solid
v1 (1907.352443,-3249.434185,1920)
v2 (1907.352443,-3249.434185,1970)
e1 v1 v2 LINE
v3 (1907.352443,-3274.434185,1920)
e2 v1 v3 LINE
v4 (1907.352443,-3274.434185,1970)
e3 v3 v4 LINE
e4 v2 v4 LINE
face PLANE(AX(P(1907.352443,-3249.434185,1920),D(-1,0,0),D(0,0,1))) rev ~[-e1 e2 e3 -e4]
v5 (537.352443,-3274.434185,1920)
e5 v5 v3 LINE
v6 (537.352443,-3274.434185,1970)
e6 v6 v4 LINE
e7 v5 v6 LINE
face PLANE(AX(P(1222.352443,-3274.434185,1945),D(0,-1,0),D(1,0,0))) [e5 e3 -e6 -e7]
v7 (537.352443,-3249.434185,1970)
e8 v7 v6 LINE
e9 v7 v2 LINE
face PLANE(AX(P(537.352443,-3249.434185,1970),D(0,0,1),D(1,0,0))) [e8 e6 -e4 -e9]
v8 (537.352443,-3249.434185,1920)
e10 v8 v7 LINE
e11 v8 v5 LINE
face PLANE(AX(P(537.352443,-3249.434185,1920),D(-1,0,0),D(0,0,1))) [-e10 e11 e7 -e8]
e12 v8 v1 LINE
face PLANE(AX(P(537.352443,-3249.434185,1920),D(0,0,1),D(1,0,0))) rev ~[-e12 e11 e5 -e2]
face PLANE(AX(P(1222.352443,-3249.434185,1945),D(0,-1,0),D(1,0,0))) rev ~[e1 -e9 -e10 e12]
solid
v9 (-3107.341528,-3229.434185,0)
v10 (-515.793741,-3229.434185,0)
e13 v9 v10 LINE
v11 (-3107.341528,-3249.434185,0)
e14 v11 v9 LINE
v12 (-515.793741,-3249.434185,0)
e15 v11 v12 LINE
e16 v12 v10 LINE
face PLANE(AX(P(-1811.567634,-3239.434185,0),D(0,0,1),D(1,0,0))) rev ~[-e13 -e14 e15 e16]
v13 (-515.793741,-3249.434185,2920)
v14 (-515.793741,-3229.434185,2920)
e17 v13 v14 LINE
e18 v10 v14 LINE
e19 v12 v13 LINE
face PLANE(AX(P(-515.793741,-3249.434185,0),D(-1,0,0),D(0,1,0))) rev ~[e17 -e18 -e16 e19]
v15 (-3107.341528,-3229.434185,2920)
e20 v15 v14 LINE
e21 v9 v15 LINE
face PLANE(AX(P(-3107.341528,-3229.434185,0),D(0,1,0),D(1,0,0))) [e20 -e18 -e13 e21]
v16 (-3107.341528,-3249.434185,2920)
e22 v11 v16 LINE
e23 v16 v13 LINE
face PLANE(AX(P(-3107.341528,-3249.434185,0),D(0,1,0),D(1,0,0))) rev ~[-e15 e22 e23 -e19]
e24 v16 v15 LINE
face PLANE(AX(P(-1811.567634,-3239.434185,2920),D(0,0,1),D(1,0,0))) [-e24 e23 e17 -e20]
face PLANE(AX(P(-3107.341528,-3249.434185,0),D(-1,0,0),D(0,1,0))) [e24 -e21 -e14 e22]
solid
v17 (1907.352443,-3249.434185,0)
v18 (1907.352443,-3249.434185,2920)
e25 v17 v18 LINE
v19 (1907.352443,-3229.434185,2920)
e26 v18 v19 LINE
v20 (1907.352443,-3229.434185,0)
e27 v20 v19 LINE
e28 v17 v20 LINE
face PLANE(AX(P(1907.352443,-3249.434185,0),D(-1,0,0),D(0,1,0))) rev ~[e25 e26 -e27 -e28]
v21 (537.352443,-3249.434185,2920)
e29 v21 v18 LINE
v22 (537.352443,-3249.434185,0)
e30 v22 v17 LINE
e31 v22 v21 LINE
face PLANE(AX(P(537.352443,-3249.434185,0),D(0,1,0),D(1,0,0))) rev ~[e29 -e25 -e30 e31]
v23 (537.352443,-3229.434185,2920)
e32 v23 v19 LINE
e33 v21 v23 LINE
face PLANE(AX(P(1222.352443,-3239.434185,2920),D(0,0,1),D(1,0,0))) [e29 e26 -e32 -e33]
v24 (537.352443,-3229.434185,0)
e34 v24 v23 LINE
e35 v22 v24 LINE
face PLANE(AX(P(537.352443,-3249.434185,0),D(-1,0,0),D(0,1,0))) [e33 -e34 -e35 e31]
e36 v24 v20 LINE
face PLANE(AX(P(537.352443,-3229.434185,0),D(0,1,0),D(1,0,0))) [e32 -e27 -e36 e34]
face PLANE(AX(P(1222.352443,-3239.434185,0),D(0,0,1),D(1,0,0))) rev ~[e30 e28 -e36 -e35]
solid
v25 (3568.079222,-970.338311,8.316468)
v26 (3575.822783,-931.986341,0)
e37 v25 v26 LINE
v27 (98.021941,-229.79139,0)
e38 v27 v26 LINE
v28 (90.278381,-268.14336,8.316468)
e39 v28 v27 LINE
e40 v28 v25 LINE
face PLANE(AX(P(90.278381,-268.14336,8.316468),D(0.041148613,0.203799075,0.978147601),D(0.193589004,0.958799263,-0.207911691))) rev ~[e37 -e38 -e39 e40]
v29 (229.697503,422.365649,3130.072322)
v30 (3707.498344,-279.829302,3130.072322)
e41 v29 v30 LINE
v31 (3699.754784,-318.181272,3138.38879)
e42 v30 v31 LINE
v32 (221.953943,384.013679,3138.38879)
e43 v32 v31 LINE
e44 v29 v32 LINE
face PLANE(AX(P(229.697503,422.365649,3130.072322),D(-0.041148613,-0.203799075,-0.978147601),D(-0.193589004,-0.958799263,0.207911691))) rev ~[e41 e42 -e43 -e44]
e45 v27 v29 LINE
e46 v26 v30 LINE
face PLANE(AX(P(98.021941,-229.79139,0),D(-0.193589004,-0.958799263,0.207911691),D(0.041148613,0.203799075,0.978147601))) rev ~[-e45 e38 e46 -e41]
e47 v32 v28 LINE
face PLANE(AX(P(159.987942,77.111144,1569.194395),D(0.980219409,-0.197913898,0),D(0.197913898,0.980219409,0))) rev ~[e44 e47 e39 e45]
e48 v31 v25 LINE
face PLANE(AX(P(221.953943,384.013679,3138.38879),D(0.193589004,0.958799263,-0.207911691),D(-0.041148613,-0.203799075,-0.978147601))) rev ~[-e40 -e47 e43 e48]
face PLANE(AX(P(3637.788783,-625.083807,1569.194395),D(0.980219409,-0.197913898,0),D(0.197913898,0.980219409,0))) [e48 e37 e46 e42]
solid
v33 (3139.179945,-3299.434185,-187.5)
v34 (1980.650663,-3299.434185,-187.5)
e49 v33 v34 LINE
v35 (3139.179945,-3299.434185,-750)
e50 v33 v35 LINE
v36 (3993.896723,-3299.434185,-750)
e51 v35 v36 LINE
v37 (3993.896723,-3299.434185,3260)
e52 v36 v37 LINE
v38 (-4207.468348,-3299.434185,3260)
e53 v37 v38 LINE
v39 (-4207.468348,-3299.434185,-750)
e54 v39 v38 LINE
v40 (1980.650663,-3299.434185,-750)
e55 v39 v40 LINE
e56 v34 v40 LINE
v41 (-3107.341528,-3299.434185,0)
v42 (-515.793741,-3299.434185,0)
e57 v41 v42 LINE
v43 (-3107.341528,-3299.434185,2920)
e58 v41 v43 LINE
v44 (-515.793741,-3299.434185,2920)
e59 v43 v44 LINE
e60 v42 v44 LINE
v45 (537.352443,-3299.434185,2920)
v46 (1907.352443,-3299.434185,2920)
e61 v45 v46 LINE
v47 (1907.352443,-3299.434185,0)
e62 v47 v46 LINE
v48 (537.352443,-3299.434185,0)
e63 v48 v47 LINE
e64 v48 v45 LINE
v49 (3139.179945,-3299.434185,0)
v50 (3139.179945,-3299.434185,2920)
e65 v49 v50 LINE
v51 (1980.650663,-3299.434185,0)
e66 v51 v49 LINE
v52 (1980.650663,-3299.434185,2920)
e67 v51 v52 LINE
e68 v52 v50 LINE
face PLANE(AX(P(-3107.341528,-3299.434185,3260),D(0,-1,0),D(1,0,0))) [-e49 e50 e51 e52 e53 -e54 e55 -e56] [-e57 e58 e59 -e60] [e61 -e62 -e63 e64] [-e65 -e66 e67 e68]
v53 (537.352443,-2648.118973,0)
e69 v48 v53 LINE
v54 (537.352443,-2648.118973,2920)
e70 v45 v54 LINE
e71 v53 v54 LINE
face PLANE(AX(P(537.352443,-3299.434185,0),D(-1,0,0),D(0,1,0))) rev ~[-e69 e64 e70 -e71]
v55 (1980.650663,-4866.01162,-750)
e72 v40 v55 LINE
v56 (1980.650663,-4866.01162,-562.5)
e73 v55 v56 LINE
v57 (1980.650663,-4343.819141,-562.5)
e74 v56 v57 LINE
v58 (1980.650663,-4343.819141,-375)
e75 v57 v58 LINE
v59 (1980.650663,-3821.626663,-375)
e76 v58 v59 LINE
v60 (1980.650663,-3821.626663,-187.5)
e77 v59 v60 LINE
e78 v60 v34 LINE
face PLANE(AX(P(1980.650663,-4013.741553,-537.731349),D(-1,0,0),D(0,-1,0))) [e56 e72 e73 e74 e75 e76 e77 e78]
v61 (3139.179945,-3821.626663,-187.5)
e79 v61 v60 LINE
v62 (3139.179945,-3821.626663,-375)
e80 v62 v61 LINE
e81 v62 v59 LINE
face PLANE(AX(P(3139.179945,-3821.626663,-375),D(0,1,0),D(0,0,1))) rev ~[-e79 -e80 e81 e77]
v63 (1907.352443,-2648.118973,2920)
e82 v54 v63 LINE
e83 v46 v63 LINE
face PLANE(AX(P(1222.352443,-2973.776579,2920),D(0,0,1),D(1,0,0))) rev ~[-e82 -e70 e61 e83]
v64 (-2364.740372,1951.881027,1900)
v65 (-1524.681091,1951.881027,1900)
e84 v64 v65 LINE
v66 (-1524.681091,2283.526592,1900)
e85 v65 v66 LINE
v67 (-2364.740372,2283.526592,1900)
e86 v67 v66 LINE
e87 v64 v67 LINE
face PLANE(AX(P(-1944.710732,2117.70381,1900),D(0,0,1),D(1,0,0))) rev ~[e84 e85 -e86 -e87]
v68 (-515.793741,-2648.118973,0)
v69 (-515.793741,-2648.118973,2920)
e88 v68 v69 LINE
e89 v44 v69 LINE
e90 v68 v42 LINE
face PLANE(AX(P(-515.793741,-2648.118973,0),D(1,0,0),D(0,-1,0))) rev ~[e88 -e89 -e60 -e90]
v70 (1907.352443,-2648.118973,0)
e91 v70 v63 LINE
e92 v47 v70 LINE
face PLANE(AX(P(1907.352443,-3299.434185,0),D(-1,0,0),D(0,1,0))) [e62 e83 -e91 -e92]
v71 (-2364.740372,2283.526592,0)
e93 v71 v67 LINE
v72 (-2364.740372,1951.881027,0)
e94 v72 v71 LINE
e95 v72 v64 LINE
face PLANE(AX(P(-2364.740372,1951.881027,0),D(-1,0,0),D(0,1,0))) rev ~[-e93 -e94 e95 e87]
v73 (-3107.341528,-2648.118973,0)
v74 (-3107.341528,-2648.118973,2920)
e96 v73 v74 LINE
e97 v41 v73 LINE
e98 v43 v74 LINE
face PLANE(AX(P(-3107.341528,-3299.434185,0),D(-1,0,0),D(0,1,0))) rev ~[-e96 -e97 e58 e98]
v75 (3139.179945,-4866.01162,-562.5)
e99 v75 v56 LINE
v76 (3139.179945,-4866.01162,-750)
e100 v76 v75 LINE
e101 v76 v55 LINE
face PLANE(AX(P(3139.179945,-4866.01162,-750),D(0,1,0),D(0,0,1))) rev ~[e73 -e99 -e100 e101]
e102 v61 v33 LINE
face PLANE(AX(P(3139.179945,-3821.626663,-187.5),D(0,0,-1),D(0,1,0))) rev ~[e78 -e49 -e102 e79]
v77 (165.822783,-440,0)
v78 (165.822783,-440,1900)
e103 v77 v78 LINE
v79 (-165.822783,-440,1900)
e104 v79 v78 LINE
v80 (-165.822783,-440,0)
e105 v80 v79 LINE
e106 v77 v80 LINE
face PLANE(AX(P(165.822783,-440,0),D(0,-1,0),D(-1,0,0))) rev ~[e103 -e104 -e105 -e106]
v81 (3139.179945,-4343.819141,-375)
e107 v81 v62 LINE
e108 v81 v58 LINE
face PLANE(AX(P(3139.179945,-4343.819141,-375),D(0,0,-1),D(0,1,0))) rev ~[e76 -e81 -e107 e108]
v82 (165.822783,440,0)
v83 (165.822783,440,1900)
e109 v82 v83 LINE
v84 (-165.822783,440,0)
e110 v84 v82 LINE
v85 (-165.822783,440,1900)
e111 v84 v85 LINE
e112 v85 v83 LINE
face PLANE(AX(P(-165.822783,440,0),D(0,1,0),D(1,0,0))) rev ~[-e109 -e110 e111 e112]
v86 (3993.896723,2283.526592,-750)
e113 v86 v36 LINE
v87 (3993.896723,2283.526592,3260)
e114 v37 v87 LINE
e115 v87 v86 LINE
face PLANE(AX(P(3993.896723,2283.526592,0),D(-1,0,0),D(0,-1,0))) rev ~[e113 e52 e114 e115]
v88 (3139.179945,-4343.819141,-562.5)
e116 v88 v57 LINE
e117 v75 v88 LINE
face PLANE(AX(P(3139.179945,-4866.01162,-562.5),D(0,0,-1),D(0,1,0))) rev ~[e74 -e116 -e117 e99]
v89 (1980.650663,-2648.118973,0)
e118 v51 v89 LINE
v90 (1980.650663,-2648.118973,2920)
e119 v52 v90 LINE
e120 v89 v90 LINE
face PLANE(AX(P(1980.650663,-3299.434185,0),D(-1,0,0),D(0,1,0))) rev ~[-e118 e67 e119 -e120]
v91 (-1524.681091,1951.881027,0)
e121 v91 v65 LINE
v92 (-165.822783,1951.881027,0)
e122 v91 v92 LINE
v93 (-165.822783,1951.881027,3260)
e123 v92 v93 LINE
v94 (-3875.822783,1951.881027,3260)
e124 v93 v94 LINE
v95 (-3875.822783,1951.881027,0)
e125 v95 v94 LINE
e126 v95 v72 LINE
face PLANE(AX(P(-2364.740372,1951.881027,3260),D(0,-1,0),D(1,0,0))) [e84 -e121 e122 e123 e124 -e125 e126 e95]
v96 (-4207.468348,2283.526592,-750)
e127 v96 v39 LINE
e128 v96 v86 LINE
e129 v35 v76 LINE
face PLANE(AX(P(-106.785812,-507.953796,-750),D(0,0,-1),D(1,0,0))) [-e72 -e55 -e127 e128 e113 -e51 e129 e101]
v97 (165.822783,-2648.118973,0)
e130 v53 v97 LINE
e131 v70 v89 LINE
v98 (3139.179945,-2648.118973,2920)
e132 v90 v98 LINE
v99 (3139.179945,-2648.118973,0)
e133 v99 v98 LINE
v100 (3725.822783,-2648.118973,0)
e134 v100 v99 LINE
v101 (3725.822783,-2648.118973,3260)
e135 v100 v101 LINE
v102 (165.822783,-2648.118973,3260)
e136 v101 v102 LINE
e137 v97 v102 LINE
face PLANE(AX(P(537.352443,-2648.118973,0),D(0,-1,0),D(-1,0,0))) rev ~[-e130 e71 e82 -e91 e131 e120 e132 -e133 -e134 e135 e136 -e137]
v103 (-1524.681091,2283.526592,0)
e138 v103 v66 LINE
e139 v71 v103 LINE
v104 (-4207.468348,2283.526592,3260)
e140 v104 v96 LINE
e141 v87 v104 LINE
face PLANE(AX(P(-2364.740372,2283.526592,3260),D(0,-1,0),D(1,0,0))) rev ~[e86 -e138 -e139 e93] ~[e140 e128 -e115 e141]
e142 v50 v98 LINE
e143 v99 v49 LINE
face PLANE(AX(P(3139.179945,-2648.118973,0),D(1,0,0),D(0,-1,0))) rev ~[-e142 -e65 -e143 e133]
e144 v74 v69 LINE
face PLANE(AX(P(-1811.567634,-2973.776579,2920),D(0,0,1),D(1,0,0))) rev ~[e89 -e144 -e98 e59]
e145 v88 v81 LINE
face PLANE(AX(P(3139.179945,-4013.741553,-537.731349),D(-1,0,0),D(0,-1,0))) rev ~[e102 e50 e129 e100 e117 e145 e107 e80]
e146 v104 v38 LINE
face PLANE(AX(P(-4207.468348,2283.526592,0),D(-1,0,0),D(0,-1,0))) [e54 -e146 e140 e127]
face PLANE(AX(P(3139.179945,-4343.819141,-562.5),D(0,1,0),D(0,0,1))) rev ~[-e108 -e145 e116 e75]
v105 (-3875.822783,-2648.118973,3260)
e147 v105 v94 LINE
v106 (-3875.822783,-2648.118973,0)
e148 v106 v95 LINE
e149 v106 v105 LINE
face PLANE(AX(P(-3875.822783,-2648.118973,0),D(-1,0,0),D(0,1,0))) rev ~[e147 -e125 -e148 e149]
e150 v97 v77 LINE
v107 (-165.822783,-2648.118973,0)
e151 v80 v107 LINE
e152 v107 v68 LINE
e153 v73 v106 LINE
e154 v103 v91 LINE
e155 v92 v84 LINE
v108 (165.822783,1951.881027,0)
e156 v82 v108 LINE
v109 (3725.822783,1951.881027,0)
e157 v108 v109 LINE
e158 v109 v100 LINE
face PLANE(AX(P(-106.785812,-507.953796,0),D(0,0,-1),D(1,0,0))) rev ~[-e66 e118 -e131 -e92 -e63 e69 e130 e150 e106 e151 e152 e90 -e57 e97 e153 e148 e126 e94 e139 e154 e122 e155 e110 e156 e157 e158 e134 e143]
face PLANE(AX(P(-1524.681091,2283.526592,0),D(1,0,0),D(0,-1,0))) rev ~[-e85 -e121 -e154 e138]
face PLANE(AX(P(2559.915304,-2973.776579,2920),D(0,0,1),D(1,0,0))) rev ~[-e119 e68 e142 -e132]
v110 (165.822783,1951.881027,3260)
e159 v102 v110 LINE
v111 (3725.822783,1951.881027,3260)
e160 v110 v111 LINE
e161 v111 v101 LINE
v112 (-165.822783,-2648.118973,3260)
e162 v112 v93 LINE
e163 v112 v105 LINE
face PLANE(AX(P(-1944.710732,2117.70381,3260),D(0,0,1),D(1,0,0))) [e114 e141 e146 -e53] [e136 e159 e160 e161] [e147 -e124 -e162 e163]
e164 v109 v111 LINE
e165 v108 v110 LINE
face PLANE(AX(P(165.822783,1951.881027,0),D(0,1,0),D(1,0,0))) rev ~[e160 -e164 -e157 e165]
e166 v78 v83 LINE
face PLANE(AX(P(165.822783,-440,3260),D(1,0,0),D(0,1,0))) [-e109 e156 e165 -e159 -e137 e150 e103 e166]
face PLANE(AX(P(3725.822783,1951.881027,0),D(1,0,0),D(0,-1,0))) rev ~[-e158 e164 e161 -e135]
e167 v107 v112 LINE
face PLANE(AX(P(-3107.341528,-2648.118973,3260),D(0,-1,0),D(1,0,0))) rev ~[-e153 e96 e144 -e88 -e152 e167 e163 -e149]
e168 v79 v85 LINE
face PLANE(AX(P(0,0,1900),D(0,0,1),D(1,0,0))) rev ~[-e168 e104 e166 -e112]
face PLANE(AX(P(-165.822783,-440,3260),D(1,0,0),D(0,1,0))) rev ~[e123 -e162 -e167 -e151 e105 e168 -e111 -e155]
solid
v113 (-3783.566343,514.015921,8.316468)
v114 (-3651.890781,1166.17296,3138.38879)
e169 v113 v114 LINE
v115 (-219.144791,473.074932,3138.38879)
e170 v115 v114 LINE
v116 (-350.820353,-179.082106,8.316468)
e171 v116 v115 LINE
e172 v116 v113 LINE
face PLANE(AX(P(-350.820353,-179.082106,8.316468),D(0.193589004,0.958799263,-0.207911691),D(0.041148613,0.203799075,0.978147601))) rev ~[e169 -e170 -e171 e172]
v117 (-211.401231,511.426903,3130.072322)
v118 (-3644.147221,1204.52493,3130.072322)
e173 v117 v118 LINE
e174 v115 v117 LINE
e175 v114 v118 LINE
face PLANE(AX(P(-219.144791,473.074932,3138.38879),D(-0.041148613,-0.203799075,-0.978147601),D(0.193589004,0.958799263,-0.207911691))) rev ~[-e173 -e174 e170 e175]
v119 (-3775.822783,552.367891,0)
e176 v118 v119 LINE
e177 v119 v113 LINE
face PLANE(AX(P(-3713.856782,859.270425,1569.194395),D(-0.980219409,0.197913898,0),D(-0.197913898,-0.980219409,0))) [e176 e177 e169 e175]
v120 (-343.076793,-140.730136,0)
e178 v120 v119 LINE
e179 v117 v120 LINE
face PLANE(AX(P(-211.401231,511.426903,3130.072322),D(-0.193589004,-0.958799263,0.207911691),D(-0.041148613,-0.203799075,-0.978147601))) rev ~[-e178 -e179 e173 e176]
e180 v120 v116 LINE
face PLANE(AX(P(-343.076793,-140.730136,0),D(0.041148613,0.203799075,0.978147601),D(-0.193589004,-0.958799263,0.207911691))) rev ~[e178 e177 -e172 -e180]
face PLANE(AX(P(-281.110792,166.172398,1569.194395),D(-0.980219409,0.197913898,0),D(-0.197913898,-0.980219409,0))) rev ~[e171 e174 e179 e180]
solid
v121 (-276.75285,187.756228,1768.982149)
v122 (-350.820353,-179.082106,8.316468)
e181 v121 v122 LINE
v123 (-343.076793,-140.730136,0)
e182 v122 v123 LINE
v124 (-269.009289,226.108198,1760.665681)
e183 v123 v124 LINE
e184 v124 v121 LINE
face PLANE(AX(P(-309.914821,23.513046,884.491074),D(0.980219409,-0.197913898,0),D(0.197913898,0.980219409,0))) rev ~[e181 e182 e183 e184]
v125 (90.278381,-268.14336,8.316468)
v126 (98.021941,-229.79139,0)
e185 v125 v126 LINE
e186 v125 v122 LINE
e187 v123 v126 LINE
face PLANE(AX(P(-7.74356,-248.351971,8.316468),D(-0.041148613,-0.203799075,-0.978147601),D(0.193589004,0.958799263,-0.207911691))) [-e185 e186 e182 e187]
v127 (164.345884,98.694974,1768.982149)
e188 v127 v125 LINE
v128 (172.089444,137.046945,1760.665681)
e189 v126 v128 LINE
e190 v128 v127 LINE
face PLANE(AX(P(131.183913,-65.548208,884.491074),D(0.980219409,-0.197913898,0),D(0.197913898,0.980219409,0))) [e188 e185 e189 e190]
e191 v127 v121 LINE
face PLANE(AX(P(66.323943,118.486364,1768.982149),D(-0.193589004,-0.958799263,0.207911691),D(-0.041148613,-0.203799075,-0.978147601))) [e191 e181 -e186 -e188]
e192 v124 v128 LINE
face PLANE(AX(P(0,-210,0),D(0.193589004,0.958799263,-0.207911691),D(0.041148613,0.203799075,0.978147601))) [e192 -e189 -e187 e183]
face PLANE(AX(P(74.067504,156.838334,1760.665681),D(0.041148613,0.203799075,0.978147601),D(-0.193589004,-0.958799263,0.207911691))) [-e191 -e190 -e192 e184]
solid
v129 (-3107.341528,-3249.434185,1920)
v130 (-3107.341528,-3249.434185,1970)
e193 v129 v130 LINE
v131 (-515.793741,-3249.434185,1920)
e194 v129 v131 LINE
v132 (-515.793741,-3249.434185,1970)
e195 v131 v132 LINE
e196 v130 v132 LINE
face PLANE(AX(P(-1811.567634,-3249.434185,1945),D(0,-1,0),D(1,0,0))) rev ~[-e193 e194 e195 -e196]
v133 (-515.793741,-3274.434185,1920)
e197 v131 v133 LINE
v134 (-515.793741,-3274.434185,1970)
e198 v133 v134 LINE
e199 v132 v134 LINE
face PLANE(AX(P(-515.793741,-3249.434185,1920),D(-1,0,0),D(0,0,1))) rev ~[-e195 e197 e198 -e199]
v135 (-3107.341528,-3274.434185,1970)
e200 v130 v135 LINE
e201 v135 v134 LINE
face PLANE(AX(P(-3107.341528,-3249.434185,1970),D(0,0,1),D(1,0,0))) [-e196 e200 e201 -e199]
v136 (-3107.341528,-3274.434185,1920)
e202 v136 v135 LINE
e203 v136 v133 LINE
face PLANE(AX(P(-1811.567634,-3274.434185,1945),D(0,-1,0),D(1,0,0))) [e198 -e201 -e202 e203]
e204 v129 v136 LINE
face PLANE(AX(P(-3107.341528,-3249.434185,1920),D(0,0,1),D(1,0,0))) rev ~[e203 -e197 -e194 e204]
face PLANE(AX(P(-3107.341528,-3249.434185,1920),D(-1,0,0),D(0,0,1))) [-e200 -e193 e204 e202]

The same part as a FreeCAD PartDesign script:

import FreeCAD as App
import Part
import Sketcher
Q = App.Units.Quantity

doc = App.newDocument("Part")
params = doc.addObject("Spreadsheet::Sheet", "Params")
for row, (alias, value) in enumerate([
    ("sketch1_width", "3560 mm"),
    ("sketch1_height", "4600 mm"),
    ("pad1_length", "3260 mm"),
    ("pad2_length", "3260 mm"),
    ("sketch3_height", "4600 mm"),
    ("pad3_length", "3260 mm"),
    ("pad4_length", "3260 mm"),
    ("pad5_length", "750 mm"),
    ("sketch6_height", "562.5 mm"),
    ("pad6_length", "1158.529282 mm"),
    ("sketch7_height", "880 mm"),
    ("pad7_length", "1360 mm"),
    ("sketch8_width", "1370 mm"),
    ("pad8_length", "340 mm"),
    ("pad9_length", "1360 mm"),
    ("sketch10_height", "20 mm"),
    ("pad10_length", "2920 mm"),
    ("sketch11_width", "1370 mm"),
    ("sketch11_height", "20 mm"),
    ("pad11_length", "2920 mm"),
    ("sketch12_height", "50 mm"),
    ("pad12_length", "25 mm"),
    ("sketch13_width", "1370 mm"),
    ("sketch13_height", "50 mm"),
    ("pad13_length", "25 mm"),
    ("sketch14_length", "40 mm"),
    ("pad14_length", "100 mm"),
    ("sketch15_length", "40 mm"),
    ("pad15_length", "350 mm"),
    ("sketch16_length", "40 mm"),
    ("pad16_length", "3547.982024 mm"),
    ("sketch17_length", "40 mm"),
    ("pad17_length", "3502.017976 mm"),
], start=1):
    params.set(f"A{row}", alias)
    params.set(f"B{row}", "=" + value)
    params.setAlias(f"B{row}", alias)

body = doc.addObject("PartDesign::Body", "Body")

# Sketch on XY plane
sketch1 = body.newObject("Sketcher::SketchObject", "Sketch")
sketch1.AttachmentSupport = (doc.getObject("XY_Plane"), [""])
sketch1.MapMode = "FlatFace"
sketch1.addGeometry([
    Part.LineSegment(App.Vector(-166, 1952, 0), App.Vector(-166, 440, 0)),  # 0
    Part.LineSegment(App.Vector(-166, 440, 0), App.Vector(166, 440, 0)),  # 1
    Part.LineSegment(App.Vector(166, 440, 0), App.Vector(166, 1952, 0)),  # 2
    Part.LineSegment(App.Vector(166, 1952, 0), App.Vector(3726, 1952, 0)),  # 3
    Part.LineSegment(App.Vector(3726, 1952, 0), App.Vector(3726, -2648, 0)),  # 4
    Part.LineSegment(App.Vector(3726, -2648, 0), App.Vector(3139, -2648, 0)),  # 5
    Part.LineSegment(App.Vector(3139, -2648, 0), App.Vector(3139, -3299, 0)),  # 6
    Part.LineSegment(App.Vector(3139, -3299, 0), App.Vector(3994, -3299, 0)),  # 7
    Part.LineSegment(App.Vector(3994, -3299, 0), App.Vector(3994, 2284, 0)),  # 8
    Part.LineSegment(App.Vector(3994, 2284, 0), App.Vector(-1525, 2284, 0)),  # 9
    Part.LineSegment(App.Vector(-1525, 2284, 0), App.Vector(-1525, 1952, 0)),  # 10
    Part.LineSegment(App.Vector(-1525, 1952, 0), App.Vector(-166, 1952, 0)),  # 11
], False)
sketch1.addConstraint([
    Sketcher.Constraint("Coincident", 0, 2, 1, 1),
    Sketcher.Constraint("Coincident", 1, 2, 2, 1),
    Sketcher.Constraint("Coincident", 2, 2, 3, 1),
    Sketcher.Constraint("Coincident", 3, 2, 4, 1),
    Sketcher.Constraint("Coincident", 4, 2, 5, 1),
    Sketcher.Constraint("Coincident", 5, 2, 6, 1),
    Sketcher.Constraint("Coincident", 6, 2, 7, 1),
    Sketcher.Constraint("Coincident", 7, 2, 8, 1),
    Sketcher.Constraint("Coincident", 8, 2, 9, 1),
    Sketcher.Constraint("Coincident", 9, 2, 10, 1),
    Sketcher.Constraint("Coincident", 10, 2, 11, 1),
    Sketcher.Constraint("Coincident", 11, 2, 0, 1),
    Sketcher.Constraint("Vertical", 0),
    Sketcher.Constraint("Horizontal", 1),
    Sketcher.Constraint("Vertical", 2),
    Sketcher.Constraint("Horizontal", 3),
    Sketcher.Constraint("Vertical", 4),
    Sketcher.Constraint("Horizontal", 5),
    Sketcher.Constraint("Vertical", 6),
    Sketcher.Constraint("Horizontal", 7),
    Sketcher.Constraint("Vertical", 8),
    Sketcher.Constraint("Horizontal", 9),
    Sketcher.Constraint("Vertical", 10),
    Sketcher.Constraint("Horizontal", 11),
    Sketcher.Constraint("Symmetric", 2, 2, 11, 2, -2),
    Sketcher.Constraint("Equal", 1, 10),
    Sketcher.Constraint("DistanceX", 3, 1, 3, 2, Q("3560 mm")),
    Sketcher.Constraint("DistanceY", 4, 2, 4, 1, Q("4600 mm")),
    Sketcher.Constraint("DistanceY", -1, 1, 0, 2, Q("440 mm")),
    Sketcher.Constraint("DistanceX", 11, 1, 11, 2, Q("1358.858309 mm")),
    Sketcher.Constraint("DistanceX", 1, 1, 1, 2, Q("331.645565 mm")),
    Sketcher.Constraint("DistanceX", 5, 2, 5, 1, Q("586.642838 mm")),
    Sketcher.Constraint("DistanceX", 7, 1, 7, 2, Q("854.716778 mm")),
    Sketcher.Constraint("DistanceY", 0, 2, 0, 1, Q("1511.881027 mm")),
    Sketcher.Constraint("DistanceY", 6, 2, 6, 1, Q("651.315212 mm")),
])
sketch1.setExpression("Constraints[26]", "Params.sketch1_width")
sketch1.setExpression("Constraints[27]", "Params.sketch1_height")
pad1 = body.newObject("PartDesign::Pad", "Pad")
pad1.Profile = sketch1
pad1.setExpression("Length", "Params.pad1_length")
body2 = doc.addObject("PartDesign::Body", "Body001")

# Sketch on XY plane
sketch2 = body2.newObject("Sketcher::SketchObject", "Sketch001")
sketch2.AttachmentSupport = (doc.getObject("XY_Plane001"), [""])
sketch2.MapMode = "FlatFace"
sketch2.addGeometry([
    Part.LineSegment(App.Vector(166, -440, 0), App.Vector(-166, -440, 0)),  # 0
    Part.LineSegment(App.Vector(-166, -440, 0), App.Vector(-166, -2648, 0)),  # 1
    Part.LineSegment(App.Vector(-166, -2648, 0), App.Vector(-516, -2648, 0)),  # 2
    Part.LineSegment(App.Vector(-516, -2648, 0), App.Vector(-516, -3299, 0)),  # 3
    Part.LineSegment(App.Vector(-516, -3299, 0), App.Vector(537, -3299, 0)),  # 4
    Part.LineSegment(App.Vector(537, -3299, 0), App.Vector(537, -2648, 0)),  # 5
    Part.LineSegment(App.Vector(537, -2648, 0), App.Vector(166, -2648, 0)),  # 6
    Part.LineSegment(App.Vector(166, -2648, 0), App.Vector(166, -440, 0)),  # 7
], False)
sketch2.addConstraint([
    Sketcher.Constraint("Coincident", 0, 2, 1, 1),
    Sketcher.Constraint("Coincident", 1, 2, 2, 1),
    Sketcher.Constraint("Coincident", 2, 2, 3, 1),
    Sketcher.Constraint("Coincident", 3, 2, 4, 1),
    Sketcher.Constraint("Coincident", 4, 2, 5, 1),
    Sketcher.Constraint("Coincident", 5, 2, 6, 1),
    Sketcher.Constraint("Coincident", 6, 2, 7, 1),
    Sketcher.Constraint("Coincident", 7, 2, 0, 1),
    Sketcher.Constraint("Horizontal", 0),
    Sketcher.Constraint("Vertical", 1),
    Sketcher.Constraint("Horizontal", 2),
    Sketcher.Constraint("Vertical", 3),
    Sketcher.Constraint("Horizontal", 4),
    Sketcher.Constraint("Vertical", 5),
    Sketcher.Constraint("Horizontal", 6),
    Sketcher.Constraint("Vertical", 7),
    Sketcher.Constraint("Symmetric", 1, 2, 6, 2, -2),
    Sketcher.Constraint("DistanceY", 0, 2, -1, 1, Q("440 mm")),
    Sketcher.Constraint("DistanceX", 2, 2, 2, 1, Q("349.970958 mm")),
    Sketcher.Constraint("DistanceX", 6, 2, 6, 1, Q("371.52966 mm")),
    Sketcher.Constraint("DistanceX", 0, 2, 0, 1, Q("331.645565 mm")),
    Sketcher.Constraint("DistanceY", 1, 2, 1, 1, Q("2208.118973 mm")),
    Sketcher.Constraint("DistanceY", 3, 2, 3, 1, Q("651.315212 mm")),
])
pad2 = body2.newObject("PartDesign::Pad", "Pad001")
pad2.Profile = sketch2
pad2.setExpression("Length", "Params.pad2_length")
body3 = doc.addObject("PartDesign::Body", "Body002")

# Sketch on XY plane
sketch3 = body3.newObject("Sketcher::SketchObject", "Sketch002")
sketch3.AttachmentSupport = (doc.getObject("XY_Plane002"), [""])
sketch3.MapMode = "FlatFace"
sketch3.addGeometry([
    Part.LineSegment(App.Vector(-3876, -2648, 0), App.Vector(-3876, 1952, 0)),  # 0
    Part.LineSegment(App.Vector(-3876, 1952, 0), App.Vector(-2365, 1952, 0)),  # 1
    Part.LineSegment(App.Vector(-2365, 1952, 0), App.Vector(-2365, 2284, 0)),  # 2
    Part.LineSegment(App.Vector(-2365, 2284, 0), App.Vector(-4207, 2284, 0)),  # 3
    Part.LineSegment(App.Vector(-4207, 2284, 0), App.Vector(-4207, -3299, 0)),  # 4
    Part.LineSegment(App.Vector(-4207, -3299, 0), App.Vector(-3107, -3299, 0)),  # 5
    Part.LineSegment(App.Vector(-3107, -3299, 0), App.Vector(-3107, -2648, 0)),  # 6
    Part.LineSegment(App.Vector(-3107, -2648, 0), App.Vector(-3876, -2648, 0)),  # 7
], False)
sketch3.addConstraint([
    Sketcher.Constraint("Coincident", 0, 2, 1, 1),
    Sketcher.Constraint("Coincident", 1, 2, 2, 1),
    Sketcher.Constraint("Coincident", 2, 2, 3, 1),
    Sketcher.Constraint("Coincident", 3, 2, 4, 1),
    Sketcher.Constraint("Coincident", 4, 2, 5, 1),
    Sketcher.Constraint("Coincident", 5, 2, 6, 1),
    Sketcher.Constraint("Coincident", 6, 2, 7, 1),
    Sketcher.Constraint("Coincident", 7, 2, 0, 1),
    Sketcher.Constraint("Vertical", 0),
    Sketcher.Constraint("Horizontal", 1),
    Sketcher.Constraint("Vertical", 2),
    Sketcher.Constraint("Horizontal", 3),
    Sketcher.Constraint("Vertical", 4),
    Sketcher.Constraint("Horizontal", 5),
    Sketcher.Constraint("Vertical", 6),
    Sketcher.Constraint("Horizontal", 7),
    Sketcher.Constraint("DistanceY", 0, 1, 0, 2, Q("4600 mm")),
    Sketcher.Constraint("DistanceX", 1, 1, 1, 2, Q("1511.082411 mm")),
    Sketcher.Constraint("DistanceX", 5, 1, 5, 2, Q("1100.12682 mm")),
    Sketcher.Constraint("DistanceX", 3, 2, 3, 1, Q("1842.727976 mm")),
    Sketcher.Constraint("DistanceY", 2, 1, 2, 2, Q("331.645565 mm")),
    Sketcher.Constraint("DistanceY", 4, 2, 4, 1, Q("5582.960777 mm")),
    Sketcher.Constraint("DistanceX", 1, 2, -1, 1, Q("2364.740372 mm")),
    Sketcher.Constraint("DistanceY", -1, 1, 0, 2, Q("1951.881027 mm")),
])
sketch3.setExpression("Constraints[16]", "Params.sketch3_height")
pad3 = body3.newObject("PartDesign::Pad", "Pad002")
pad3.Profile = sketch3
pad3.setExpression("Length", "Params.pad3_length")
body4 = doc.addObject("PartDesign::Body", "Body003")

# Sketch on XY plane
sketch4 = body4.newObject("Sketcher::SketchObject", "Sketch003")
sketch4.AttachmentSupport = (doc.getObject("XY_Plane003"), [""])
sketch4.MapMode = "FlatFace"
sketch4.addGeometry([
    Part.LineSegment(App.Vector(1907, -2648, 0), App.Vector(1907, -3299, 0)),
    Part.LineSegment(App.Vector(1907, -3299, 0), App.Vector(1981, -3299, 0)),
    Part.LineSegment(App.Vector(1981, -3299, 0), App.Vector(1981, -2648, 0)),
    Part.LineSegment(App.Vector(1981, -2648, 0), App.Vector(1907, -2648, 0)),
], False)
sketch4.addConstraint([
    Sketcher.Constraint("Coincident", 0, 2, 1, 1),
    Sketcher.Constraint("Coincident", 1, 2, 2, 1),
    Sketcher.Constraint("Coincident", 2, 2, 3, 1),
    Sketcher.Constraint("Coincident", 3, 2, 0, 1),
    Sketcher.Constraint("Vertical", 0),
    Sketcher.Constraint("Horizontal", 1),
    Sketcher.Constraint("Vertical", 2),
    Sketcher.Constraint("Horizontal", 3),
    Sketcher.Constraint("DistanceX", 1, 1, 1, 2, Q("73.298221 mm")),
    Sketcher.Constraint("DistanceY", 0, 2, 0, 1, Q("651.315212 mm")),
    Sketcher.Constraint("DistanceX", -1, 1, 0, 2, Q("1907.352443 mm")),
    Sketcher.Constraint("DistanceY", 0, 2, -1, 1, Q("3299.434185 mm")),
])
pad4 = body4.newObject("PartDesign::Pad", "Pad003")
pad4.Profile = sketch4
pad4.setExpression("Length", "Params.pad4_length")
body.AllowCompound = True
doc.recompute()

boolean = body.newObject("PartDesign::Boolean", "Boolean")
boolean.Type = "Fuse"
boolean.addObjects([body2])
doc.recompute()

boolean2 = body.newObject("PartDesign::Boolean", "Boolean001")
boolean2.Type = "Fuse"
boolean2.addObjects([body3])
doc.recompute()

boolean3 = body.newObject("PartDesign::Boolean", "Boolean002")
boolean3.Type = "Fuse"
boolean3.addObjects([body4])

# Sketch on XY plane
sketch5 = body.newObject("Sketcher::SketchObject", "Sketch004")
sketch5.AttachmentSupport = (doc.getObject("XY_Plane"), [""])
sketch5.MapMode = "FlatFace"
sketch5.addGeometry([
    Part.LineSegment(App.Vector(-4207, -3299, 0), App.Vector(-4207, 2284, 0)),
    Part.LineSegment(App.Vector(-4207, 2284, 0), App.Vector(3994, 2284, 0)),
    Part.LineSegment(App.Vector(3994, 2284, 0), App.Vector(3994, -3299, 0)),
    Part.LineSegment(App.Vector(3994, -3299, 0), App.Vector(-4207, -3299, 0)),
], False)
sketch5.addConstraint([
    Sketcher.Constraint("Coincident", 0, 2, 1, 1),
    Sketcher.Constraint("Coincident", 1, 2, 2, 1),
    Sketcher.Constraint("Coincident", 2, 2, 3, 1),
    Sketcher.Constraint("Coincident", 3, 2, 0, 1),
    Sketcher.Constraint("Vertical", 0),
    Sketcher.Constraint("Horizontal", 1),
    Sketcher.Constraint("Vertical", 2),
    Sketcher.Constraint("Horizontal", 3),
    Sketcher.Constraint("DistanceX", 1, 1, 1, 2, Q("8201.36507 mm")),
    Sketcher.Constraint("DistanceY", 0, 1, 0, 2, Q("5582.960777 mm")),
    Sketcher.Constraint("DistanceX", 0, 2, -1, 1, Q("4207.468348 mm")),
    Sketcher.Constraint("DistanceY", -1, 1, 0, 2, Q("2283.526592 mm")),
])
pad5 = body.newObject("PartDesign::Pad", "Pad004")
pad5.Profile = sketch5
pad5.setExpression("Length", "Params.pad5_length")
pad5.Reversed = True

# Sketch on YZ plane
sketch6 = body.newObject("Sketcher::SketchObject", "Sketch005")
sketch6.AttachmentSupport = (doc.getObject("YZ_Plane"), [""])
sketch6.MapMode = "FlatFace"
sketch6.AttachmentOffset = App.Placement(App.Vector(0, 0, 3139.179945), App.Rotation())
sketch6.addGeometry([
    Part.LineSegment(App.Vector(-3822, -188, 0), App.Vector(-3299, -188, 0)),  # 0
    Part.LineSegment(App.Vector(-3299, -188, 0), App.Vector(-3299, -750, 0)),  # 1
    Part.LineSegment(App.Vector(-3299, -750, 0), App.Vector(-4866, -750, 0)),  # 2
    Part.LineSegment(App.Vector(-4866, -750, 0), App.Vector(-4866, -562, 0)),  # 3
    Part.LineSegment(App.Vector(-4866, -562, 0), App.Vector(-4344, -562, 0)),  # 4
    Part.LineSegment(App.Vector(-4344, -562, 0), App.Vector(-4344, -375, 0)),  # 5
    Part.LineSegment(App.Vector(-4344, -375, 0), App.Vector(-3822, -375, 0)),  # 6
    Part.LineSegment(App.Vector(-3822, -375, 0), App.Vector(-3822, -188, 0)),  # 7
], False)
sketch6.addConstraint([
    Sketcher.Constraint("Coincident", 0, 2, 1, 1),
    Sketcher.Constraint("Coincident", 1, 2, 2, 1),
    Sketcher.Constraint("Coincident", 2, 2, 3, 1),
    Sketcher.Constraint("Coincident", 3, 2, 4, 1),
    Sketcher.Constraint("Coincident", 4, 2, 5, 1),
    Sketcher.Constraint("Coincident", 5, 2, 6, 1),
    Sketcher.Constraint("Coincident", 6, 2, 7, 1),
    Sketcher.Constraint("Coincident", 7, 2, 0, 1),
    Sketcher.Constraint("Horizontal", 0),
    Sketcher.Constraint("Vertical", 1),
    Sketcher.Constraint("Horizontal", 2),
    Sketcher.Constraint("Vertical", 3),
    Sketcher.Constraint("Horizontal", 4),
    Sketcher.Constraint("Vertical", 5),
    Sketcher.Constraint("Horizontal", 6),
    Sketcher.Constraint("Vertical", 7),
    Sketcher.Constraint("Equal", 0, 4),
    Sketcher.Constraint("Equal", 4, 6),
    Sketcher.Constraint("Equal", 3, 5),
    Sketcher.Constraint("Equal", 5, 7),
    Sketcher.Constraint("DistanceY", 1, 2, 1, 1, Q("562.5 mm")),
    Sketcher.Constraint("DistanceY", 1, 2, -1, 1, Q("750 mm")),
    Sketcher.Constraint("DistanceX", 0, 1, 0, 2, Q("522.192478 mm")),
    Sketcher.Constraint("DistanceX", 2, 2, -1, 1, Q("4866.01162 mm")),
])
sketch6.setExpression("Constraints[20]", "Params.sketch6_height")
pad6 = body.newObject("PartDesign::Pad", "Pad005")
pad6.Profile = sketch6
pad6.setExpression("Length", "Params.pad6_length")
pad6.Reversed = True

# Sketch on XY plane
sketch7 = body.newObject("Sketcher::SketchObject", "Sketch006")
sketch7.AttachmentSupport = (doc.getObject("XY_Plane"), [""])
sketch7.MapMode = "FlatFace"
sketch7.AttachmentOffset = App.Placement(App.Vector(0, 0, 3260), App.Rotation())
sketch7.addGeometry([
    Part.LineSegment(App.Vector(-166, 440, 0), App.Vector(-166, -440, 0)),
    Part.LineSegment(App.Vector(-166, -440, 0), App.Vector(166, -440, 0)),
    Part.LineSegment(App.Vector(166, -440, 0), App.Vector(166, 440, 0)),
    Part.LineSegment(App.Vector(166, 440, 0), App.Vector(-166, 440, 0)),
], False)
sketch7.addConstraint([
    Sketcher.Constraint("Coincident", 0, 2, 1, 1),
    Sketcher.Constraint("Coincident", 1, 2, 2, 1),
    Sketcher.Constraint("Coincident", 2, 2, 3, 1),
    Sketcher.Constraint("Coincident", 3, 2, 0, 1),
    Sketcher.Constraint("Vertical", 0),
    Sketcher.Constraint("Horizontal", 1),
    Sketcher.Constraint("Vertical", 2),
    Sketcher.Constraint("Horizontal", 3),
    Sketcher.Constraint("Symmetric", 0, 2, 2, 2, -1, 1),
    Sketcher.Constraint("DistanceY", 0, 2, 0, 1, Q("880 mm")),
    Sketcher.Constraint("DistanceX", 1, 1, 1, 2, Q("331.645565 mm")),
])
sketch7.setExpression("Constraints[9]", "Params.sketch7_height")
pad7 = body.newObject("PartDesign::Pad", "Pad006")
pad7.Profile = sketch7
pad7.setExpression("Length", "Params.pad7_length")
pad7.Reversed = True

# Sketch on XY plane
sketch8 = body.newObject("Sketcher::SketchObject", "Sketch007")
sketch8.AttachmentSupport = (doc.getObject("XY_Plane"), [""])
sketch8.MapMode = "FlatFace"
sketch8.AttachmentOffset = App.Placement(App.Vector(0, 0, 3260), App.Rotation())
sketch8.addGeometry([
    Part.LineSegment(App.Vector(-3107, -2648, 0), App.Vector(-3107, -3299, 0)),  # 0
    Part.LineSegment(App.Vector(-3107, -3299, 0), App.Vector(-516, -3299, 0)),  # 1
    Part.LineSegment(App.Vector(-516, -3299, 0), App.Vector(-516, -2648, 0)),  # 2
    Part.LineSegment(App.Vector(-516, -2648, 0), App.Vector(-3107, -2648, 0)),  # 3
    Part.LineSegment(App.Vector(537, -2648, 0), App.Vector(537, -3299, 0)),  # 4
    Part.LineSegment(App.Vector(537, -3299, 0), App.Vector(1907, -3299, 0)),  # 5
    Part.LineSegment(App.Vector(1907, -3299, 0), App.Vector(1907, -2648, 0)),  # 6
    Part.LineSegment(App.Vector(1907, -2648, 0), App.Vector(537, -2648, 0)),  # 7
    Part.LineSegment(App.Vector(1981, -2648, 0), App.Vector(1981, -3299, 0)),  # 8
    Part.LineSegment(App.Vector(1981, -3299, 0), App.Vector(3139, -3299, 0)),  # 9
    Part.LineSegment(App.Vector(3139, -3299, 0), App.Vector(3139, -2648, 0)),  # 10
    Part.LineSegment(App.Vector(3139, -2648, 0), App.Vector(1981, -2648, 0)),  # 11
], False)
sketch8.addConstraint([
    Sketcher.Constraint("Coincident", 0, 2, 1, 1),
    Sketcher.Constraint("Coincident", 1, 2, 2, 1),
    Sketcher.Constraint("Coincident", 2, 2, 3, 1),
    Sketcher.Constraint("Coincident", 3, 2, 0, 1),
    Sketcher.Constraint("Coincident", 4, 2, 5, 1),
    Sketcher.Constraint("Coincident", 5, 2, 6, 1),
    Sketcher.Constraint("Coincident", 6, 2, 7, 1),
    Sketcher.Constraint("Coincident", 7, 2, 4, 1),
    Sketcher.Constraint("Coincident", 8, 2, 9, 1),
    Sketcher.Constraint("Coincident", 9, 2, 10, 1),
    Sketcher.Constraint("Coincident", 10, 2, 11, 1),
    Sketcher.Constraint("Coincident", 11, 2, 8, 1),
    Sketcher.Constraint("Vertical", 0),
    Sketcher.Constraint("Horizontal", 1),
    Sketcher.Constraint("Vertical", 2),
    Sketcher.Constraint("Horizontal", 3),
    Sketcher.Constraint("Vertical", 4),
    Sketcher.Constraint("Horizontal", 5),
    Sketcher.Constraint("Vertical", 6),
    Sketcher.Constraint("Horizontal", 7),
    Sketcher.Constraint("Vertical", 8),
    Sketcher.Constraint("Horizontal", 9),
    Sketcher.Constraint("Vertical", 10),
    Sketcher.Constraint("Horizontal", 11),
    Sketcher.Constraint("Horizontal", 1, 2, 4, 2),
    Sketcher.Constraint("Horizontal", 3, 2, 6, 2),
    Sketcher.Constraint("Horizontal", 5, 2, 8, 2),
    Sketcher.Constraint("Horizontal", 7, 2, 10, 2),
    Sketcher.Constraint("DistanceX", 5, 1, 5, 2, Q("1370 mm")),
    Sketcher.Constraint("DistanceX", 9, 1, 9, 2, Q("1158.529282 mm")),
    Sketcher.Constraint("DistanceX", 1, 1, 1, 2, Q("2591.547787 mm")),
    Sketcher.Constraint("DistanceY", 0, 2, 0, 1, Q("651.315212 mm")),
    Sketcher.Constraint("DistanceX", 1, 2, -1, 1, Q("515.793741 mm")),
    Sketcher.Constraint("DistanceX", 0, 2, 4, 2, Q("3644.693971 mm")),
    Sketcher.Constraint("DistanceX", 5, 2, 8, 2, Q("73.298221 mm")),
    Sketcher.Constraint("DistanceY", 0, 2, -1, 1, Q("3299.434185 mm")),
])
sketch8.setExpression("Constraints[28]", "Params.sketch8_width")
pad8 = body.newObject("PartDesign::Pad", "Pad007")
pad8.Profile = sketch8
pad8.setExpression("Length", "Params.pad8_length")
pad8.Reversed = True

# Sketch on XY plane
sketch9 = body.newObject("Sketcher::SketchObject", "Sketch008")
sketch9.AttachmentSupport = (doc.getObject("XY_Plane"), [""])
sketch9.MapMode = "FlatFace"
sketch9.AttachmentOffset = App.Placement(App.Vector(0, 0, 3260), App.Rotation())
sketch9.addGeometry([
    Part.LineSegment(App.Vector(-2365, 2284, 0), App.Vector(-2365, 1952, 0)),
    Part.LineSegment(App.Vector(-2365, 1952, 0), App.Vector(-1525, 1952, 0)),
    Part.LineSegment(App.Vector(-1525, 1952, 0), App.Vector(-1525, 2284, 0)),
    Part.LineSegment(App.Vector(-1525, 2284, 0), App.Vector(-2365, 2284, 0)),
], False)
sketch9.addConstraint([
    Sketcher.Constraint("Coincident", 0, 2, 1, 1),
    Sketcher.Constraint("Coincident", 1, 2, 2, 1),
    Sketcher.Constraint("Coincident", 2, 2, 3, 1),
    Sketcher.Constraint("Coincident", 3, 2, 0, 1),
    Sketcher.Constraint("Vertical", 0),
    Sketcher.Constraint("Horizontal", 1),
    Sketcher.Constraint("Vertical", 2),
    Sketcher.Constraint("Horizontal", 3),
    Sketcher.Constraint("DistanceX", 1, 1, 1, 2, Q("840.05928 mm")),
    Sketcher.Constraint("DistanceY", 0, 2, 0, 1, Q("331.645565 mm")),
    Sketcher.Constraint("DistanceX", 0, 2, -1, 1, Q("2364.740372 mm")),
    Sketcher.Constraint("DistanceY", -1, 1, 0, 2, Q("1951.881027 mm")),
])
pad9 = body.newObject("PartDesign::Pad", "Pad008")
pad9.Profile = sketch9
pad9.setExpression("Length", "Params.pad9_length")
pad9.Reversed = True
body5 = doc.addObject("PartDesign::Body", "Body004")

# Sketch on XY plane
sketch10 = body5.newObject("Sketcher::SketchObject", "Sketch009")
sketch10.AttachmentSupport = (doc.getObject("XY_Plane004"), [""])
sketch10.MapMode = "FlatFace"
sketch10.addGeometry([
    Part.LineSegment(App.Vector(-3107, -3229, 0), App.Vector(-3107, -3249, 0)),
    Part.LineSegment(App.Vector(-3107, -3249, 0), App.Vector(-516, -3249, 0)),
    Part.LineSegment(App.Vector(-516, -3249, 0), App.Vector(-516, -3229, 0)),
    Part.LineSegment(App.Vector(-516, -3229, 0), App.Vector(-3107, -3229, 0)),
], False)
sketch10.addConstraint([
    Sketcher.Constraint("Coincident", 0, 2, 1, 1),
    Sketcher.Constraint("Coincident", 1, 2, 2, 1),
    Sketcher.Constraint("Coincident", 2, 2, 3, 1),
    Sketcher.Constraint("Coincident", 3, 2, 0, 1),
    Sketcher.Constraint("Vertical", 0),
    Sketcher.Constraint("Horizontal", 1),
    Sketcher.Constraint("Vertical", 2),
    Sketcher.Constraint("Horizontal", 3),
    Sketcher.Constraint("DistanceY", 0, 2, 0, 1, Q("20 mm")),
    Sketcher.Constraint("DistanceX", 1, 1, 1, 2, Q("2591.547787 mm")),
    Sketcher.Constraint("DistanceX", 1, 2, -1, 1, Q("515.793741 mm")),
    Sketcher.Constraint("DistanceY", 0, 2, -1, 1, Q("3249.434185 mm")),
])
sketch10.setExpression("Constraints[8]", "Params.sketch10_height")
pad10 = body5.newObject("PartDesign::Pad", "Pad009")
pad10.Profile = sketch10
pad10.setExpression("Length", "Params.pad10_length")
body6 = doc.addObject("PartDesign::Body", "Body005")

# Sketch on XY plane
sketch11 = body6.newObject("Sketcher::SketchObject", "Sketch010")
sketch11.AttachmentSupport = (doc.getObject("XY_Plane005"), [""])
sketch11.MapMode = "FlatFace"
sketch11.addGeometry([
    Part.LineSegment(App.Vector(537, -3229, 0), App.Vector(537, -3249, 0)),
    Part.LineSegment(App.Vector(537, -3249, 0), App.Vector(1907, -3249, 0)),
    Part.LineSegment(App.Vector(1907, -3249, 0), App.Vector(1907, -3229, 0)),
    Part.LineSegment(App.Vector(1907, -3229, 0), App.Vector(537, -3229, 0)),
], False)
sketch11.addConstraint([
    Sketcher.Constraint("Coincident", 0, 2, 1, 1),
    Sketcher.Constraint("Coincident", 1, 2, 2, 1),
    Sketcher.Constraint("Coincident", 2, 2, 3, 1),
    Sketcher.Constraint("Coincident", 3, 2, 0, 1),
    Sketcher.Constraint("Vertical", 0),
    Sketcher.Constraint("Horizontal", 1),
    Sketcher.Constraint("Vertical", 2),
    Sketcher.Constraint("Horizontal", 3),
    Sketcher.Constraint("DistanceX", 1, 1, 1, 2, Q("1370 mm")),
    Sketcher.Constraint("DistanceY", 0, 2, 0, 1, Q("20 mm")),
    Sketcher.Constraint("DistanceX", -1, 1, 0, 2, Q("537.352443 mm")),
    Sketcher.Constraint("DistanceY", 0, 2, -1, 1, Q("3249.434185 mm")),
])
sketch11.setExpression("Constraints[8]", "Params.sketch11_width")
sketch11.setExpression("Constraints[9]", "Params.sketch11_height")
pad11 = body6.newObject("PartDesign::Pad", "Pad010")
pad11.Profile = sketch11
pad11.setExpression("Length", "Params.pad11_length")
body7 = doc.addObject("PartDesign::Body", "Body006")

# Sketch on XZ plane
sketch12 = body7.newObject("Sketcher::SketchObject", "Sketch011")
sketch12.AttachmentSupport = (doc.getObject("XZ_Plane006"), [""])
sketch12.MapMode = "FlatFace"
sketch12.AttachmentOffset = App.Placement(App.Vector(0, 0, 3249.434185), App.Rotation())
sketch12.addGeometry([
    Part.LineSegment(App.Vector(-3107, 1970, 0), App.Vector(-3107, 1920, 0)),
    Part.LineSegment(App.Vector(-3107, 1920, 0), App.Vector(-516, 1920, 0)),
    Part.LineSegment(App.Vector(-516, 1920, 0), App.Vector(-516, 1970, 0)),
    Part.LineSegment(App.Vector(-516, 1970, 0), App.Vector(-3107, 1970, 0)),
], False)
sketch12.addConstraint([
    Sketcher.Constraint("Coincident", 0, 2, 1, 1),
    Sketcher.Constraint("Coincident", 1, 2, 2, 1),
    Sketcher.Constraint("Coincident", 2, 2, 3, 1),
    Sketcher.Constraint("Coincident", 3, 2, 0, 1),
    Sketcher.Constraint("Vertical", 0),
    Sketcher.Constraint("Horizontal", 1),
    Sketcher.Constraint("Vertical", 2),
    Sketcher.Constraint("Horizontal", 3),
    Sketcher.Constraint("DistanceY", 0, 2, 0, 1, Q("50 mm")),
    Sketcher.Constraint("DistanceY", -1, 1, 0, 2, Q("1920 mm")),
    Sketcher.Constraint("DistanceX", 1, 1, 1, 2, Q("2591.547787 mm")),
    Sketcher.Constraint("DistanceX", 1, 2, -1, 1, Q("515.793741 mm")),
])
sketch12.setExpression("Constraints[8]", "Params.sketch12_height")
pad12 = body7.newObject("PartDesign::Pad", "Pad011")
pad12.Profile = sketch12
pad12.setExpression("Length", "Params.pad12_length")
body8 = doc.addObject("PartDesign::Body", "Body007")

# Sketch on XZ plane
sketch13 = body8.newObject("Sketcher::SketchObject", "Sketch012")
sketch13.AttachmentSupport = (doc.getObject("XZ_Plane007"), [""])
sketch13.MapMode = "FlatFace"
sketch13.AttachmentOffset = App.Placement(App.Vector(0, 0, 3249.434185), App.Rotation())
sketch13.addGeometry([
    Part.LineSegment(App.Vector(537, 1970, 0), App.Vector(537, 1920, 0)),
    Part.LineSegment(App.Vector(537, 1920, 0), App.Vector(1907, 1920, 0)),
    Part.LineSegment(App.Vector(1907, 1920, 0), App.Vector(1907, 1970, 0)),
    Part.LineSegment(App.Vector(1907, 1970, 0), App.Vector(537, 1970, 0)),
], False)
sketch13.addConstraint([
    Sketcher.Constraint("Coincident", 0, 2, 1, 1),
    Sketcher.Constraint("Coincident", 1, 2, 2, 1),
    Sketcher.Constraint("Coincident", 2, 2, 3, 1),
    Sketcher.Constraint("Coincident", 3, 2, 0, 1),
    Sketcher.Constraint("Vertical", 0),
    Sketcher.Constraint("Horizontal", 1),
    Sketcher.Constraint("Vertical", 2),
    Sketcher.Constraint("Horizontal", 3),
    Sketcher.Constraint("DistanceX", 1, 1, 1, 2, Q("1370 mm")),
    Sketcher.Constraint("DistanceY", 0, 2, 0, 1, Q("50 mm")),
    Sketcher.Constraint("DistanceY", -1, 1, 0, 2, Q("1920 mm")),
    Sketcher.Constraint("DistanceX", -1, 1, 0, 2, Q("537.352443 mm")),
])
sketch13.setExpression("Constraints[8]", "Params.sketch13_width")
sketch13.setExpression("Constraints[9]", "Params.sketch13_height")
pad13 = body8.newObject("PartDesign::Pad", "Pad012")
pad13.Profile = sketch13
pad13.setExpression("Length", "Params.pad13_length")
body9 = doc.addObject("PartDesign::Body", "Body008")

# Sketch on an angled plane
sketch14 = body9.newObject("Sketcher::SketchObject", "Sketch013")
sketch14.Placement = App.Placement(App.Vector(40.739799, -8.225681, 0), App.Rotation(App.Vector(0.197913898, 0.980219409, 0), App.Vector(0, 0, 1.000000001), App.Vector(0.980219409, -0.197913898, 0), "ZXY"))
sketch14.addGeometry([
    Part.LineSegment(App.Vector(-245, 8, 0), App.Vector(-206, 0, 0)),
    Part.LineSegment(App.Vector(-206, 0, 0), App.Vector(168, 1761, 0)),
    Part.LineSegment(App.Vector(168, 1761, 0), App.Vector(129, 1769, 0)),
    Part.LineSegment(App.Vector(129, 1769, 0), App.Vector(-245, 8, 0)),
], False)
sketch14.addConstraint([
    Sketcher.Constraint("Coincident", 0, 2, 1, 1),
    Sketcher.Constraint("Coincident", 1, 2, 2, 1),
    Sketcher.Constraint("Coincident", 2, 2, 3, 1),
    Sketcher.Constraint("Coincident", 3, 2, 0, 1),
    Sketcher.Constraint("PointOnObject", 0, 2, -1),
    Sketcher.Constraint("Perpendicular", 0, 1),
    Sketcher.Constraint("Perpendicular", 1, 2),
    Sketcher.Constraint("Perpendicular", 2, 3),
    Sketcher.Constraint("Angle", 0, Q("-12 deg")),
    Sketcher.Constraint("Distance", 0, Q("40 mm")),
    Sketcher.Constraint("DistanceY", -1, 1, 2, 2, Q("1768.982152 mm")),
    Sketcher.Constraint("DistanceX", 3, 2, -1, 1, Q("244.97198 mm")),
])
sketch14.setExpression("Constraints[9]", "Params.sketch14_length")
pad14 = body9.newObject("PartDesign::Pad", "Pad013")
pad14.Profile = sketch14
pad14.setExpression("Length", "Params.pad14_length")
body.AllowCompound = True
doc.recompute()

boolean4 = body.newObject("PartDesign::Boolean", "Boolean003")
boolean4.Type = "Fuse"
boolean4.addObjects([body9])

# Sketch on an angled plane
sketch15 = body.newObject("Sketcher::SketchObject", "Sketch014")
sketch15.Placement = App.Placement(App.Vector(40.739799, -8.225681, 0), App.Rotation(App.Vector(0.197913898, 0.980219409, 0), App.Vector(0, 0, 1.000000001), App.Vector(0.980219409, -0.197913898, 0), "ZXY"))
sketch15.addGeometry([
    Part.LineSegment(App.Vector(-245, 8, 0), App.Vector(-206, 0, 0)),
    Part.LineSegment(App.Vector(-206, 0, 0), App.Vector(168, 1761, 0)),
    Part.LineSegment(App.Vector(168, 1761, 0), App.Vector(129, 1769, 0)),
    Part.LineSegment(App.Vector(129, 1769, 0), App.Vector(-245, 8, 0)),
], False)
sketch15.addConstraint([
    Sketcher.Constraint("Coincident", 0, 2, 1, 1),
    Sketcher.Constraint("Coincident", 1, 2, 2, 1),
    Sketcher.Constraint("Coincident", 2, 2, 3, 1),
    Sketcher.Constraint("Coincident", 3, 2, 0, 1),
    Sketcher.Constraint("PointOnObject", 0, 2, -1),
    Sketcher.Constraint("Perpendicular", 0, 1),
    Sketcher.Constraint("Perpendicular", 1, 2),
    Sketcher.Constraint("Perpendicular", 2, 3),
    Sketcher.Constraint("Angle", 0, Q("-12 deg")),
    Sketcher.Constraint("Distance", 0, Q("40 mm")),
    Sketcher.Constraint("DistanceY", -1, 1, 2, 2, Q("1768.982152 mm")),
    Sketcher.Constraint("DistanceX", 3, 2, -1, 1, Q("244.97198 mm")),
])
sketch15.setExpression("Constraints[9]", "Params.sketch15_length")
pad15 = body.newObject("PartDesign::Pad", "Pad014")
pad15.Profile = sketch15
pad15.setExpression("Length", "Params.pad15_length")
pad15.Reversed = True
body10 = doc.addObject("PartDesign::Body", "Body009")

# Sketch on an angled plane
sketch16 = body10.newObject("Sketcher::SketchObject", "Sketch015")
sketch16.Placement = App.Placement(App.Vector(138.76174, -28.017071, 0), App.Rotation(App.Vector(0.197913898, 0.980219409, 0), App.Vector(0, 0, 1.000000001), App.Vector(0.980219409, -0.197913898, 0), "ZXY"))
sketch16.addGeometry([
    Part.LineSegment(App.Vector(420, 3138, 0), App.Vector(-245, 8, 0)),
    Part.LineSegment(App.Vector(-245, 8, 0), App.Vector(-206, 0, 0)),
    Part.LineSegment(App.Vector(-206, 0, 0), App.Vector(459, 3130, 0)),
    Part.LineSegment(App.Vector(459, 3130, 0), App.Vector(420, 3138, 0)),
], False)
sketch16.addConstraint([
    Sketcher.Constraint("Coincident", 0, 2, 1, 1),
    Sketcher.Constraint("Coincident", 1, 2, 2, 1),
    Sketcher.Constraint("Coincident", 2, 2, 3, 1),
    Sketcher.Constraint("Coincident", 3, 2, 0, 1),
    Sketcher.Constraint("PointOnObject", 1, 2, -1),
    Sketcher.Constraint("Perpendicular", 0, 1),
    Sketcher.Constraint("Perpendicular", 1, 2),
    Sketcher.Constraint("Perpendicular", 2, 3),
    Sketcher.Constraint("Angle", 0, Q("-102 deg")),
    Sketcher.Constraint("Distance", 1, Q("40 mm")),
    Sketcher.Constraint("DistanceX", 0, 2, -1, 1, Q("244.97198 mm")),
    Sketcher.Constraint("DistanceX", -1, 1, 3, 2, Q("420.345431 mm")),
])
sketch16.setExpression("Constraints[9]", "Params.sketch16_length")
pad16 = body10.newObject("PartDesign::Pad", "Pad015")
pad16.Profile = sketch16
pad16.setExpression("Length", "Params.pad16_length")
body11 = doc.addObject("PartDesign::Body", "Body010")

# Sketch on an angled plane
sketch17 = body11.newObject("Sketcher::SketchObject", "Sketch016")
sketch17.Placement = App.Placement(App.Vector(-302.336994, 61.044183, 0), App.Rotation(App.Vector(-0.197913898, -0.980219409, 0), App.Vector(0, 0, 1.000000001), App.Vector(-0.980219409, 0.197913898, 0), "ZXY"))
sketch17.addGeometry([
    Part.LineSegment(App.Vector(245, 8, 0), App.Vector(-420, 3138, 0)),
    Part.LineSegment(App.Vector(-420, 3138, 0), App.Vector(-459, 3130, 0)),
    Part.LineSegment(App.Vector(-459, 3130, 0), App.Vector(206, 0, 0)),
    Part.LineSegment(App.Vector(206, 0, 0), App.Vector(245, 8, 0)),
], False)
sketch17.addConstraint([
    Sketcher.Constraint("Coincident", 0, 2, 1, 1),
    Sketcher.Constraint("Coincident", 1, 2, 2, 1),
    Sketcher.Constraint("Coincident", 2, 2, 3, 1),
    Sketcher.Constraint("Coincident", 3, 2, 0, 1),
    Sketcher.Constraint("PointOnObject", 2, 2, -1),
    Sketcher.Constraint("Perpendicular", 0, 1),
    Sketcher.Constraint("Perpendicular", 1, 2),
    Sketcher.Constraint("Perpendicular", 2, 3),
    Sketcher.Constraint("Angle", 0, Q("102 deg")),
    Sketcher.Constraint("Distance", 1, Q("40 mm")),
    Sketcher.Constraint("DistanceX", 0, 2, -1, 1, Q("420.345431 mm")),
    Sketcher.Constraint("DistanceX", -1, 1, 3, 2, Q("244.97198 mm")),
])
sketch17.setExpression("Constraints[9]", "Params.sketch17_length")
pad17 = body11.newObject("PartDesign::Pad", "Pad016")
pad17.Profile = sketch17
pad17.setExpression("Length", "Params.pad17_length")

doc.recompute()
